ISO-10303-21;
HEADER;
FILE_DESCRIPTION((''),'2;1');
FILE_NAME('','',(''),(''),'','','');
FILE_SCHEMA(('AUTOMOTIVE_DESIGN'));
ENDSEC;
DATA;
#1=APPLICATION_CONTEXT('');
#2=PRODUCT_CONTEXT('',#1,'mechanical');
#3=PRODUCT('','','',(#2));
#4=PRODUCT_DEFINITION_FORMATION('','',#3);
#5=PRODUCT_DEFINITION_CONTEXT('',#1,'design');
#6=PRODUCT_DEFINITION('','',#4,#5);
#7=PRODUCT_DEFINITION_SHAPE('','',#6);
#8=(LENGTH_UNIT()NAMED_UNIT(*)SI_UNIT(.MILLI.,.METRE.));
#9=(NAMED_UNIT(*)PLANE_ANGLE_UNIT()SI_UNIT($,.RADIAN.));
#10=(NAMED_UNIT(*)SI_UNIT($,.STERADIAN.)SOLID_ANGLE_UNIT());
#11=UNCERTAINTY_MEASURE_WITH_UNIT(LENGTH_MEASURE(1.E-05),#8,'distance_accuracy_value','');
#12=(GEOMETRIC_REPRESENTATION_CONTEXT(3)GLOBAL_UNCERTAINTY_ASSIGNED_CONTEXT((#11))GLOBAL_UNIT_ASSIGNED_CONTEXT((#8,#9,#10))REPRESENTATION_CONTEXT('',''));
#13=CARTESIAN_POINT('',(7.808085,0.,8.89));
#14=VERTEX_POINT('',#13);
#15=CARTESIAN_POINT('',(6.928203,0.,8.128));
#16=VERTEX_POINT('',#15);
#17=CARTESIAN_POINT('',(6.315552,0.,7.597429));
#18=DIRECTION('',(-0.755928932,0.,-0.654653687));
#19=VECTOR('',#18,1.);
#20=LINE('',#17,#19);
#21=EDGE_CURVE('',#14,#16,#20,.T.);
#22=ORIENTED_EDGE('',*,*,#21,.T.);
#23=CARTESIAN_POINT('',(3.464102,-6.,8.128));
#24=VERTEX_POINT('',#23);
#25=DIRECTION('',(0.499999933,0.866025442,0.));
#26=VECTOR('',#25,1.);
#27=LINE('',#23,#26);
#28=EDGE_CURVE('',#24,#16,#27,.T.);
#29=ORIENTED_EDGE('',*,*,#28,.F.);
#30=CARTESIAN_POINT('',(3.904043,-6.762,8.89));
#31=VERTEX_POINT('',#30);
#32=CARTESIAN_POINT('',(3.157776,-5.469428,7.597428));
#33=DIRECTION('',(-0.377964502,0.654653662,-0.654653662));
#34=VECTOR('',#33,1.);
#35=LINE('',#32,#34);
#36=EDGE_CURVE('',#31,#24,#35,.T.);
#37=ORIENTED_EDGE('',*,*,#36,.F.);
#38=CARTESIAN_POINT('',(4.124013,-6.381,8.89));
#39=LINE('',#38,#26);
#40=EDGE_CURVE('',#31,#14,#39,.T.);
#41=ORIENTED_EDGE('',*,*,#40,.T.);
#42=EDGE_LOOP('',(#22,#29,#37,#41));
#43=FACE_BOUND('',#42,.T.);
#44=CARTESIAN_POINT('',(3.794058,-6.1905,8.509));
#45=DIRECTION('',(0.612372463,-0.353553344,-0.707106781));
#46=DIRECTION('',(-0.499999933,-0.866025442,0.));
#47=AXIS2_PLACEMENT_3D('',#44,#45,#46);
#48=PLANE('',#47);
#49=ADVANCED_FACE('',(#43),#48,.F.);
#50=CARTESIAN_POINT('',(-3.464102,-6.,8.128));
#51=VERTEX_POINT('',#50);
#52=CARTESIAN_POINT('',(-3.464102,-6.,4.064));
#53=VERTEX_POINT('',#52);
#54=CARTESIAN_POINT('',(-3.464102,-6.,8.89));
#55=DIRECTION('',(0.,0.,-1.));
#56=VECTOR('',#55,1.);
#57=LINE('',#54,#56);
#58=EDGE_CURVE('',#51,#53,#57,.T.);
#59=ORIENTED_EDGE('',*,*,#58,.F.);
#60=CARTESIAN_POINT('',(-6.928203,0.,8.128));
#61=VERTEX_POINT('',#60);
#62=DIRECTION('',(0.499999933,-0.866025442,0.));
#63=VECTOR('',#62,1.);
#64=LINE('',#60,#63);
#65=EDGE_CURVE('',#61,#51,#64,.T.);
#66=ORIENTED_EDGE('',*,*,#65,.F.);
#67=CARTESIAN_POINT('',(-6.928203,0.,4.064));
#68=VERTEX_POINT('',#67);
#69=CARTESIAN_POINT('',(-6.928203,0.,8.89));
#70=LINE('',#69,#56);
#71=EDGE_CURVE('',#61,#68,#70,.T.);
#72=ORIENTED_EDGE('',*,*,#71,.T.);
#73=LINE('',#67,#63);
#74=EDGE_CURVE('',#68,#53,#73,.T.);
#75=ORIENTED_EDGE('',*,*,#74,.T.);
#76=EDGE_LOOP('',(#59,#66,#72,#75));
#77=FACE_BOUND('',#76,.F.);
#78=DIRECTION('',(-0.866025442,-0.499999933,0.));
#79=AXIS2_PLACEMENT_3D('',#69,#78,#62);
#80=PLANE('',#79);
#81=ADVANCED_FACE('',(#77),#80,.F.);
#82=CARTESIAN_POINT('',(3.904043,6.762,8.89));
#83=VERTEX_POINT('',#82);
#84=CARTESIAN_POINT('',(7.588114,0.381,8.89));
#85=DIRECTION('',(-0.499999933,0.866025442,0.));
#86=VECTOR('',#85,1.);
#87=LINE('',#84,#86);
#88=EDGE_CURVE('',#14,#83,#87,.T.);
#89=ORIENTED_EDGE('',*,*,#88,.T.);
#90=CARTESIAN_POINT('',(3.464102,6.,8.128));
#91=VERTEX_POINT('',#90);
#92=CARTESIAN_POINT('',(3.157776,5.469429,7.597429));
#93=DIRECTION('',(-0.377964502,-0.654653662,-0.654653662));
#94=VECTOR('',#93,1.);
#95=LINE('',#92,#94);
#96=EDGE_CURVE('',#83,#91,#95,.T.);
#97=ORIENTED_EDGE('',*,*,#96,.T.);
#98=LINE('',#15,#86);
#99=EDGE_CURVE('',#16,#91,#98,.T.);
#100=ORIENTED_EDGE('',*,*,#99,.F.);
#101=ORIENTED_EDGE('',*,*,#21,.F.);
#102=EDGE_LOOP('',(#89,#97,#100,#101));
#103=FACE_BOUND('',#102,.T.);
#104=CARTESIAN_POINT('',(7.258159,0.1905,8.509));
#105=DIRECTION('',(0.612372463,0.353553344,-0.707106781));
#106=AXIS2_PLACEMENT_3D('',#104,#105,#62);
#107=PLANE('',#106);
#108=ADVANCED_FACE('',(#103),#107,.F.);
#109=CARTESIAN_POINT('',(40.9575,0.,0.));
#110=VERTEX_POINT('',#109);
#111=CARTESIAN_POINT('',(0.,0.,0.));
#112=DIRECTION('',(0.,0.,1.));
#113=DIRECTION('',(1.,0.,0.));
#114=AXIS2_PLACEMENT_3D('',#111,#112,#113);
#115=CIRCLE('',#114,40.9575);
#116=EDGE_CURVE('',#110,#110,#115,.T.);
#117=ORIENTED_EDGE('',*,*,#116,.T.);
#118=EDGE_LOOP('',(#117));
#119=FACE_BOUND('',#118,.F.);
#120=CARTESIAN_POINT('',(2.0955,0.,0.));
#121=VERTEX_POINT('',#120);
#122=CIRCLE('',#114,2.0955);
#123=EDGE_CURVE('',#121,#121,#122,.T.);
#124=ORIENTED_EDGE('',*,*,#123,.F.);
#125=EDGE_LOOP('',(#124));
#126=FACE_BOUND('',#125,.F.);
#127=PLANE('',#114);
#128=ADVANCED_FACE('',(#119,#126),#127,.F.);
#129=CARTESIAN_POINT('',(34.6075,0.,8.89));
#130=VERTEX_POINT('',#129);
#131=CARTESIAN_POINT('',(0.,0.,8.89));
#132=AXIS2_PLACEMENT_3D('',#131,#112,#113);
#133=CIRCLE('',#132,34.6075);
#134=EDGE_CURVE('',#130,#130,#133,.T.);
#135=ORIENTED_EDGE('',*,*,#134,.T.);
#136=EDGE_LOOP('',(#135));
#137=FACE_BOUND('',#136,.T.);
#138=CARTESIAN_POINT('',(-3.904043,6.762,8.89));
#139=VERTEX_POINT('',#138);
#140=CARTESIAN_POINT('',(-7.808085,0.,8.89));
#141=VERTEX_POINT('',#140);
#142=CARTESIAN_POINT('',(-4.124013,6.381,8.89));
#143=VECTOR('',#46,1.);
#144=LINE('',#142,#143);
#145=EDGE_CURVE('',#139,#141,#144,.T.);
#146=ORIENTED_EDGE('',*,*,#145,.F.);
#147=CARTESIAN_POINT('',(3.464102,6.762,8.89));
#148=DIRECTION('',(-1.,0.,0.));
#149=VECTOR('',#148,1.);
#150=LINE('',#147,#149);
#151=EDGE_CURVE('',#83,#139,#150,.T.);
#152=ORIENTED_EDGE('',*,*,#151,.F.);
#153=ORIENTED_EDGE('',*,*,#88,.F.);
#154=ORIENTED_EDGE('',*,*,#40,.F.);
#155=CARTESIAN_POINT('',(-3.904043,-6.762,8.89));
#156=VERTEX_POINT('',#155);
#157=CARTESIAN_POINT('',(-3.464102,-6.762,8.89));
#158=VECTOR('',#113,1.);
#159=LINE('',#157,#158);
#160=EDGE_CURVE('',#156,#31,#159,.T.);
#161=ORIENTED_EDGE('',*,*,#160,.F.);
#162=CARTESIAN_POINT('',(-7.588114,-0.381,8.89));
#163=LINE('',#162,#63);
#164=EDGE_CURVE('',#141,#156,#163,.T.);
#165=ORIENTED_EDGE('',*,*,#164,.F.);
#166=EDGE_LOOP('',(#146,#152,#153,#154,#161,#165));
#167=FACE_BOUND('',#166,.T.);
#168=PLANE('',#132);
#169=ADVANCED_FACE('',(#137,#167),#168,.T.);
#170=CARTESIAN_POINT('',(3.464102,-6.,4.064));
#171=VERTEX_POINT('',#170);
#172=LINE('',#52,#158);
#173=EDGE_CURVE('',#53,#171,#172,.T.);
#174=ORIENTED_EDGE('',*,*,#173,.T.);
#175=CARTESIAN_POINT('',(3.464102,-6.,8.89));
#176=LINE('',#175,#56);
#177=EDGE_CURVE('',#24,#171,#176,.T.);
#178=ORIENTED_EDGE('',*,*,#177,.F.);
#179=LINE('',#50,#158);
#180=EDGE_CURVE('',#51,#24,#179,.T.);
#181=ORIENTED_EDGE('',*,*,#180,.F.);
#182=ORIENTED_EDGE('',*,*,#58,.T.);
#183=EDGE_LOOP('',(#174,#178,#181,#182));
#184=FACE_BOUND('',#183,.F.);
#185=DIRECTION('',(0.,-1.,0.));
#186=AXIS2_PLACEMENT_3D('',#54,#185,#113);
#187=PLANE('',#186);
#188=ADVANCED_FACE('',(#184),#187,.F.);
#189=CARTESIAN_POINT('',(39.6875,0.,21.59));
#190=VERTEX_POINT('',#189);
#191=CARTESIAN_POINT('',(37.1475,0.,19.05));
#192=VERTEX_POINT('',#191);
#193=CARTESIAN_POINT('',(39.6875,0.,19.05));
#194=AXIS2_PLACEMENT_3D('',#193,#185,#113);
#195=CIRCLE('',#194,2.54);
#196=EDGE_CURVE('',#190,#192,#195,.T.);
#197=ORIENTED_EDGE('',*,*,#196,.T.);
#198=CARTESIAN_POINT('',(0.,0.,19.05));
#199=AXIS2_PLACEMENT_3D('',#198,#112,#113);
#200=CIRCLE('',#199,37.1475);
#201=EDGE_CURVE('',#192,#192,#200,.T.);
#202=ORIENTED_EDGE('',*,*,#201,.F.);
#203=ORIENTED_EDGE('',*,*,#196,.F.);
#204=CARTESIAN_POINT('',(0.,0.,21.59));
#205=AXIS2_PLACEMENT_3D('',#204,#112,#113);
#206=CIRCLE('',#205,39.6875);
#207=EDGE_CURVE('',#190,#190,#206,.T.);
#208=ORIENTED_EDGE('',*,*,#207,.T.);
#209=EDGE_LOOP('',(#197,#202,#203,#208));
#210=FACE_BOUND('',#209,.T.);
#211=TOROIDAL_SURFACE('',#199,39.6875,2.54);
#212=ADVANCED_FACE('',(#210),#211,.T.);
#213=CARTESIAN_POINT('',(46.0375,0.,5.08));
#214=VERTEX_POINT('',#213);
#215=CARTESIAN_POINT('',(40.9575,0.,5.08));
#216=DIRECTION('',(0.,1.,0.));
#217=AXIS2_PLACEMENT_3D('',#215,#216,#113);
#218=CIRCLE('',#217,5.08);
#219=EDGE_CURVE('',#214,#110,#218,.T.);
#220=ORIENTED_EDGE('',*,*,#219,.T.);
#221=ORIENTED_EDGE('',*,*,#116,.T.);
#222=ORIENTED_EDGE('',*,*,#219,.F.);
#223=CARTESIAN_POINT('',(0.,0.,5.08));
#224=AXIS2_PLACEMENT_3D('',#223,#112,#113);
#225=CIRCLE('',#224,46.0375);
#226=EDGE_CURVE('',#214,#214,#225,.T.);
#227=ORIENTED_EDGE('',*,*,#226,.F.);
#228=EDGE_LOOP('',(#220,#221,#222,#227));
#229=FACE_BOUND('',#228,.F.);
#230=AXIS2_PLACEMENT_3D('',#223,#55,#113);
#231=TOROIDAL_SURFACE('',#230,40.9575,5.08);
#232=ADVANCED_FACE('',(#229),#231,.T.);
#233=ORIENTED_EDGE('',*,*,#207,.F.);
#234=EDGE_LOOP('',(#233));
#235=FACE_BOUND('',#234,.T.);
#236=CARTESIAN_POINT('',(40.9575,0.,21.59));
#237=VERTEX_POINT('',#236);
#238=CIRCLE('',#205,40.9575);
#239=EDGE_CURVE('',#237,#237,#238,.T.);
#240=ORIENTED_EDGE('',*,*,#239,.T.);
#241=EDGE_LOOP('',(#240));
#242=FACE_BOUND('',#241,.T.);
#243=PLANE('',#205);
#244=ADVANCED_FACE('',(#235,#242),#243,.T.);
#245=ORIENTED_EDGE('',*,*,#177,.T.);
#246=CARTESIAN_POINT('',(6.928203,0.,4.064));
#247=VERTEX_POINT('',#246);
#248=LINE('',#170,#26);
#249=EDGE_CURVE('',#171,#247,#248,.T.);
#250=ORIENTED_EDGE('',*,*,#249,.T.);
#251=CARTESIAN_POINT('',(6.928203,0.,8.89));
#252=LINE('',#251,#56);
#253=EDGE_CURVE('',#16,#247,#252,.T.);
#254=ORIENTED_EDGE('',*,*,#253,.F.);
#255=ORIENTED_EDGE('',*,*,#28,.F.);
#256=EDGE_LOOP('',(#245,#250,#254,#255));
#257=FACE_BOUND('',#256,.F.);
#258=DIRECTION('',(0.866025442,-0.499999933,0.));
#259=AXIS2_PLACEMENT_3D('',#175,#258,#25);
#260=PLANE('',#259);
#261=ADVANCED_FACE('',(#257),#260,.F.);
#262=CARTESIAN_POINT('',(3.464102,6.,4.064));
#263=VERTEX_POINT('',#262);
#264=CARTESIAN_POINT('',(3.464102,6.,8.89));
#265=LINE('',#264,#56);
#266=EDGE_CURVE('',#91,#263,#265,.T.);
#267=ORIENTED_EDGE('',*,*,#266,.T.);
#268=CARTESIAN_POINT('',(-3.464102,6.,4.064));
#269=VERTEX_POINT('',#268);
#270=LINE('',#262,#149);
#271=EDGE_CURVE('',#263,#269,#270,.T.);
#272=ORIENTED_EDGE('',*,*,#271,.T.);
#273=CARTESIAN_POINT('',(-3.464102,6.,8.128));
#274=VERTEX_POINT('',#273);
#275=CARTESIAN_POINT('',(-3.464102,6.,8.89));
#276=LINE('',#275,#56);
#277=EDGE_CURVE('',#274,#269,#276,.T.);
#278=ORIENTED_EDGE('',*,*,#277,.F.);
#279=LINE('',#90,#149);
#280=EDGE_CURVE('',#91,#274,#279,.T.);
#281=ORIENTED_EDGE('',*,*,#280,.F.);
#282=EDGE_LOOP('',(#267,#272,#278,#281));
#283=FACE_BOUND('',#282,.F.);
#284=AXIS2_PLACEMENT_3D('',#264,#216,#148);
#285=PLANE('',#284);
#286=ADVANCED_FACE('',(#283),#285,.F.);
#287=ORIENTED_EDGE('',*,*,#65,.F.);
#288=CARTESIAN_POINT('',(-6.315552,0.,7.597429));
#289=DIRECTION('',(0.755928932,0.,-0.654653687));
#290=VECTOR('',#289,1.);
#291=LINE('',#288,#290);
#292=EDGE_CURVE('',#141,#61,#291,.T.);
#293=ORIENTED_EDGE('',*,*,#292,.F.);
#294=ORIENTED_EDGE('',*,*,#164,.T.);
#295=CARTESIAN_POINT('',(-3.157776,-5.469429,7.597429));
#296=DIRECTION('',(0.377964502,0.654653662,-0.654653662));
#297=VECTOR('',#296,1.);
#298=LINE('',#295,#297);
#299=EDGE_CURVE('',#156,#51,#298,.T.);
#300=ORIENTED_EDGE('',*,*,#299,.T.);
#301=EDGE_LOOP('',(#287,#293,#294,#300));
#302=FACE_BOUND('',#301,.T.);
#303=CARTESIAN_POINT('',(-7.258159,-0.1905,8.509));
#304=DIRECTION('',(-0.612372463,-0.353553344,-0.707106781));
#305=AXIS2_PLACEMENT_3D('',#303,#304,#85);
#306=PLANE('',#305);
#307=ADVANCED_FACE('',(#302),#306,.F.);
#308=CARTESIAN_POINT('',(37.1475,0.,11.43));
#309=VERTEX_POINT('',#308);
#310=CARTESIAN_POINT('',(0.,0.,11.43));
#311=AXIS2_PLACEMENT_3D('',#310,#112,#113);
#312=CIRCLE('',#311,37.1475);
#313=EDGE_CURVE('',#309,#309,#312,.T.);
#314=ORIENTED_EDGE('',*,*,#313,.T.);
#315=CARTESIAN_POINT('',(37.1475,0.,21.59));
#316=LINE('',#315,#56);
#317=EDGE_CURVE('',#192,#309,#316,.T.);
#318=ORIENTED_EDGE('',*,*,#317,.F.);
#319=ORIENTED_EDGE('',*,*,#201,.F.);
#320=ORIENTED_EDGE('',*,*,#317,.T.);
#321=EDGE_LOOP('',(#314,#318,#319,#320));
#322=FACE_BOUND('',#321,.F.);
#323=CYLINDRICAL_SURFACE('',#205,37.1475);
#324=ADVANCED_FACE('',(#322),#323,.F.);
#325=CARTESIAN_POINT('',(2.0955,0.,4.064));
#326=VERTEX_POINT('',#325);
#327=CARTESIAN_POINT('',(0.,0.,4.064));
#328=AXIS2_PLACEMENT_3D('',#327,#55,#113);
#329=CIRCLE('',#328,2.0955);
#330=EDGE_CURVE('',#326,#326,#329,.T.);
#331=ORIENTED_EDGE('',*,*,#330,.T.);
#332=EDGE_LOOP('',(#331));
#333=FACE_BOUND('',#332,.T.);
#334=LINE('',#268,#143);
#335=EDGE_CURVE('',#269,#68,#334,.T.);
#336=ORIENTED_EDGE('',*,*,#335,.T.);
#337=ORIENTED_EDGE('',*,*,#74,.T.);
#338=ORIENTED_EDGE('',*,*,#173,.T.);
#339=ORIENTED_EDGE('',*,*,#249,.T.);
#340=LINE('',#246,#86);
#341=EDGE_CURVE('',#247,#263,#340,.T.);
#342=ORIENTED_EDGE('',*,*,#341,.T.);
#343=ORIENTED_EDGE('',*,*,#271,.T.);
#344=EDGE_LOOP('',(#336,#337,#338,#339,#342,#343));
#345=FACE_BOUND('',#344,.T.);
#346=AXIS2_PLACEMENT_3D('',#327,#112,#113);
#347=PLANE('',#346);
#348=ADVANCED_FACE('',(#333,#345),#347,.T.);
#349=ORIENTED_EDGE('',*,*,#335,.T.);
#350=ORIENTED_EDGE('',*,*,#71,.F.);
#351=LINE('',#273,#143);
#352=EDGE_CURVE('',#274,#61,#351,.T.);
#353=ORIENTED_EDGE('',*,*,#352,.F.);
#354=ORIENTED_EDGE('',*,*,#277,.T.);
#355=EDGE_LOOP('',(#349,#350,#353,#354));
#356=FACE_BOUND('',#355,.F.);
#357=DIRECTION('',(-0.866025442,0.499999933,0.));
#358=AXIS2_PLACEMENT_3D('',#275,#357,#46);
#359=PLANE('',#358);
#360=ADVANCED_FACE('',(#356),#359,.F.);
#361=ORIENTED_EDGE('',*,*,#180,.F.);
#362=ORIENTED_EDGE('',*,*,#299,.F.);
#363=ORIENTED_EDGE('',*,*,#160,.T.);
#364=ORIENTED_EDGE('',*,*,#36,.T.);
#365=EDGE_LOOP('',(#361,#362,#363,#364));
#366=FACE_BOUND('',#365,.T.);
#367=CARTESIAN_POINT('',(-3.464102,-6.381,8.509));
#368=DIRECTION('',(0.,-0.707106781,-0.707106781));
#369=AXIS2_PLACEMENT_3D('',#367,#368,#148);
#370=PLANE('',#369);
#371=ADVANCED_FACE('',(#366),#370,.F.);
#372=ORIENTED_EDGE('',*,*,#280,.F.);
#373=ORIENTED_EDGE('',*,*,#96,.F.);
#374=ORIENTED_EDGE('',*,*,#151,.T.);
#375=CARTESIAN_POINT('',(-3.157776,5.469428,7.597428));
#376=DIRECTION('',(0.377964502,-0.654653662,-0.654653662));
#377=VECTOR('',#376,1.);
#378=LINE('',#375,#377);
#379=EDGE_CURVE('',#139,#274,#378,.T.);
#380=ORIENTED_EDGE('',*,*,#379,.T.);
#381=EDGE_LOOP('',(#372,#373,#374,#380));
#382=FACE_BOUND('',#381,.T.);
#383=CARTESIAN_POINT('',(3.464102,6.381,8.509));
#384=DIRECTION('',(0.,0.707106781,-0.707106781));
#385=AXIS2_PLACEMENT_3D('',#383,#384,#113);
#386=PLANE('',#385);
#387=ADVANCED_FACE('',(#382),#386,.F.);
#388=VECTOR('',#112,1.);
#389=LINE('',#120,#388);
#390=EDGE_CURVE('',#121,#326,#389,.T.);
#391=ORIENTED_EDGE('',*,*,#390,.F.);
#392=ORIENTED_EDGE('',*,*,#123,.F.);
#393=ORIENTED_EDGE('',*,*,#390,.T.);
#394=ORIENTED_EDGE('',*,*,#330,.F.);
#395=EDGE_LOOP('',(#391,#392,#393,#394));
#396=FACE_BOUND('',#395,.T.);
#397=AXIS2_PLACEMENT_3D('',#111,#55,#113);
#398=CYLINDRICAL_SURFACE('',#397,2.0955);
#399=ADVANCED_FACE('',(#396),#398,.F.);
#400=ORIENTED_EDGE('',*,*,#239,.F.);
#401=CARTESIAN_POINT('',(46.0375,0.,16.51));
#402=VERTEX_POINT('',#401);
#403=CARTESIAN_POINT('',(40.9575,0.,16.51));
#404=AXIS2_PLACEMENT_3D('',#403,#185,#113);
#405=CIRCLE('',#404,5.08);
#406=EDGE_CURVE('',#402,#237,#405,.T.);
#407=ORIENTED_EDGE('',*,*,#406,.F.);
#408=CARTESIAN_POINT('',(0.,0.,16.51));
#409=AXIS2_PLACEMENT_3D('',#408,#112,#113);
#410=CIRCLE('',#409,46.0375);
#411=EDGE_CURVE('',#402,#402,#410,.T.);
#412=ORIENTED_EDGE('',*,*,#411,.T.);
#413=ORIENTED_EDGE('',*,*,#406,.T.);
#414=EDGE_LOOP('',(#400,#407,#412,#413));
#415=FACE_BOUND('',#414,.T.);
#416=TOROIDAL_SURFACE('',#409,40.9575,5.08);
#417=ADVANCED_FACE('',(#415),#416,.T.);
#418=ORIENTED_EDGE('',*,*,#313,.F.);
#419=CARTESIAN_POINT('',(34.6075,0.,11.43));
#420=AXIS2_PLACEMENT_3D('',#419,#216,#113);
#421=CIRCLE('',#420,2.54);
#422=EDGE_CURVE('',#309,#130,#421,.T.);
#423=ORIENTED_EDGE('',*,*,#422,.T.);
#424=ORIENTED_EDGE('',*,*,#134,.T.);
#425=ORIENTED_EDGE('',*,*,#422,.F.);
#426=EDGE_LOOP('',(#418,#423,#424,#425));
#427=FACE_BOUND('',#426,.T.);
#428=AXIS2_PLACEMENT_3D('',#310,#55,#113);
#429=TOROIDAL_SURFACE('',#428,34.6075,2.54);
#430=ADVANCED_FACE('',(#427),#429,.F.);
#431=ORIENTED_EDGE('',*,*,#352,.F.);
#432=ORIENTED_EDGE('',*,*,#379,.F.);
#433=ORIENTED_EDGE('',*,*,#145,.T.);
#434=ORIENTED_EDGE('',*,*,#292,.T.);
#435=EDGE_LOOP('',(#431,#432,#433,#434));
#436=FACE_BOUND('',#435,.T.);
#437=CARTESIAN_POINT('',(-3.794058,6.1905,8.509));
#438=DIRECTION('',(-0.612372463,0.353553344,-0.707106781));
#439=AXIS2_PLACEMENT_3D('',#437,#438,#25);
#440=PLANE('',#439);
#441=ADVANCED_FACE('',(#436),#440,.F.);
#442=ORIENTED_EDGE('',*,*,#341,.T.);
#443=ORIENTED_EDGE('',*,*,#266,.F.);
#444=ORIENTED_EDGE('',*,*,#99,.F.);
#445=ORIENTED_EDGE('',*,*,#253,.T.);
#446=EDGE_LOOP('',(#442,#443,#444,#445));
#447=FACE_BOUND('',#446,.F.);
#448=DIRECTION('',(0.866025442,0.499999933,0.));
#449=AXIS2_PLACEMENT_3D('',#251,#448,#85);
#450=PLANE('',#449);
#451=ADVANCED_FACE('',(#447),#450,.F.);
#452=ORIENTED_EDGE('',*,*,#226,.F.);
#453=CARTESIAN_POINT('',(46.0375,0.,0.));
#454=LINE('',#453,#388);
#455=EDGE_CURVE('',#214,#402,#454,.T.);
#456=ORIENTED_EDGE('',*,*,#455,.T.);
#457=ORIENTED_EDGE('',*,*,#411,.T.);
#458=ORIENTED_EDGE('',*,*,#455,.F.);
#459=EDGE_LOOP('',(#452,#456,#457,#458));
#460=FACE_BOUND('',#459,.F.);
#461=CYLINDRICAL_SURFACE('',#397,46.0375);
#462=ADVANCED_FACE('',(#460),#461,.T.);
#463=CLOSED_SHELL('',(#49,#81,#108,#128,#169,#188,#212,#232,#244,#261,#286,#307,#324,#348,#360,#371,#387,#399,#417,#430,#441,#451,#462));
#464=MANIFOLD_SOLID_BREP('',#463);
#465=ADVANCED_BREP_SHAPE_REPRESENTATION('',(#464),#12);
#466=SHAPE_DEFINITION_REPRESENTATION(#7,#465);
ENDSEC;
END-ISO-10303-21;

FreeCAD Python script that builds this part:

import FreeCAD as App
import Part
import Sketcher
Q = App.Units.Quantity


def edges_at(feature, points):
    """Names of the edges that pass closest to the given points."""
    edges = feature.Shape.Edges
    near = lambda p: min(range(len(edges)), key=lambda i: edges[i].distToShape(Part.Vertex(*p))[0])
    return sorted({f"Edge{near(p) + 1}" for p in points})


def add_polygon(sketch, points):
    """Adds a closed chain of lines whose ends are joined by coincident constraints."""
    first, n = sketch.GeometryCount, len(points)
    for a, b in zip(points, points[1:] + points[:1]):
        sketch.addGeometry(Part.LineSegment(App.Vector(*a, 0), App.Vector(*b, 0)), False)
    for i in range(n):
        sketch.addConstraint(Sketcher.Constraint("Coincident", first + i, 2, first + (i + 1) % n, 1))

doc = App.newDocument("Part")
body = doc.addObject("PartDesign::Body", "Body")

# Sketch on XY plane
sketch1 = body.newObject("Sketcher::SketchObject", "Sketch")
sketch1.AttachmentSupport = (doc.getObject("XY_Plane"), [""])
sketch1.MapMode = "FlatFace"
sketch1.addGeometry(Part.Circle(App.Vector(0, 0, 0), App.Vector(0, 0, 1), 46), False)
sketch1.addGeometry(Part.Circle(App.Vector(0, 0, 0), App.Vector(0, 0, 1), 2.1), False)
sketch1.addConstraint(Sketcher.Constraint("Coincident", 0, 3, -1, 1))
sketch1.addConstraint(Sketcher.Constraint("Coincident", 1, 3, -1, 1))
sketch1.addConstraint(Sketcher.Constraint("Diameter", 0, Q("3.625 in")))
sketch1.addConstraint(Sketcher.Constraint("Diameter", 1, Q("0.165 in")))
pad1 = body.newObject("PartDesign::Pad", "Pad")
pad1.Profile = sketch1
pad1.Length = Q("0.85 in")

# Sketch on XY plane
sketch2 = body.newObject("Sketcher::SketchObject", "Sketch001")
sketch2.AttachmentSupport = (doc.getObject("XY_Plane"), [""])
sketch2.MapMode = "FlatFace"
sketch2.AttachmentOffset = App.Placement(App.Vector(0, 0, 0.85 * 25.4), App.Rotation())
sketch2.addGeometry(Part.Circle(App.Vector(0, 0, 0), App.Vector(0, 0, 1), 37), False)
sketch2.addConstraint(Sketcher.Constraint("Coincident", 0, 3, -1, 1))
sketch2.addConstraint(Sketcher.Constraint("Diameter", 0, Q("2.925 in")))
pocket1 = body.newObject("PartDesign::Pocket", "Pocket")
pocket1.Profile = sketch2
pocket1.Length = Q("0.5 in")

# Sketch on XY plane
sketch3 = body.newObject("Sketcher::SketchObject", "Sketch002")
sketch3.AttachmentSupport = (doc.getObject("XY_Plane"), [""])
sketch3.MapMode = "FlatFace"
sketch3.AttachmentOffset = App.Placement(App.Vector(0, 0, 0.35 * 25.4), App.Rotation())
add_polygon(sketch3, [(7, 0), (3, 6), (-3, 6), (-7, 0), (-3, -6), (3, -6)])  # lines 0-5
sketch3.addConstraint(Sketcher.Constraint("Horizontal", 1))
sketch3.addConstraint(Sketcher.Constraint("Horizontal", 4))
sketch3.addConstraint(Sketcher.Constraint("Symmetric", 0, 2, 3, 2, -1, 1))
sketch3.addConstraint(Sketcher.Constraint("Symmetric", 2, 2, 5, 2, -1, 1))
sketch3.addConstraint(Sketcher.Constraint("PointOnObject", 2, 2, -1))
sketch3.addConstraint(Sketcher.Constraint("Parallel", 2, 5))
sketch3.addConstraint(Sketcher.Constraint("Vertical", 1, 2, 3, 2))
sketch3.addConstraint(Sketcher.Constraint("Angle", 0, Q("119.999996 deg")))
sketch3.addConstraint(Sketcher.Constraint("DistanceX", -1, 1, 0, 2, Q("3.464102 mm")))
sketch3.addConstraint(Sketcher.Constraint("DistanceY", -1, 1, 0, 2, Q("6 mm")))
pocket2 = body.newObject("PartDesign::Pocket", "Pocket001")
pocket2.Profile = sketch3
pocket2.Length = Q("0.19 in")
doc.recompute()

fillet = body.newObject("PartDesign::Fillet", "Fillet")
fillet.Base = (pocket2, edges_at(pocket2, [(-46.038, 0, 21.59), (-46.038, 0, 0)]))
fillet.Radius = Q("0.2 in")
doc.recompute()

fillet2 = body.newObject("PartDesign::Fillet", "Fillet001")
fillet2.Base = (fillet, edges_at(fillet, [(-37.148, 0, 21.59), (-37.148, 0, 8.89)]))
fillet2.Radius = Q("0.1 in")
doc.recompute()

chamfer = body.newObject("PartDesign::Chamfer", "Chamfer")
chamfer.Base = (fillet2, edges_at(fillet2, [
    (-5.196, 3, 8.89),
    (-5.196, -3, 8.89),
    (0, -6, 8.89),
    (5.196, -3, 8.89),
    (5.196, 3, 8.89),
    (0, 6, 8.89),
]))
chamfer.Size = Q("0.03 in")

doc.recompute()
